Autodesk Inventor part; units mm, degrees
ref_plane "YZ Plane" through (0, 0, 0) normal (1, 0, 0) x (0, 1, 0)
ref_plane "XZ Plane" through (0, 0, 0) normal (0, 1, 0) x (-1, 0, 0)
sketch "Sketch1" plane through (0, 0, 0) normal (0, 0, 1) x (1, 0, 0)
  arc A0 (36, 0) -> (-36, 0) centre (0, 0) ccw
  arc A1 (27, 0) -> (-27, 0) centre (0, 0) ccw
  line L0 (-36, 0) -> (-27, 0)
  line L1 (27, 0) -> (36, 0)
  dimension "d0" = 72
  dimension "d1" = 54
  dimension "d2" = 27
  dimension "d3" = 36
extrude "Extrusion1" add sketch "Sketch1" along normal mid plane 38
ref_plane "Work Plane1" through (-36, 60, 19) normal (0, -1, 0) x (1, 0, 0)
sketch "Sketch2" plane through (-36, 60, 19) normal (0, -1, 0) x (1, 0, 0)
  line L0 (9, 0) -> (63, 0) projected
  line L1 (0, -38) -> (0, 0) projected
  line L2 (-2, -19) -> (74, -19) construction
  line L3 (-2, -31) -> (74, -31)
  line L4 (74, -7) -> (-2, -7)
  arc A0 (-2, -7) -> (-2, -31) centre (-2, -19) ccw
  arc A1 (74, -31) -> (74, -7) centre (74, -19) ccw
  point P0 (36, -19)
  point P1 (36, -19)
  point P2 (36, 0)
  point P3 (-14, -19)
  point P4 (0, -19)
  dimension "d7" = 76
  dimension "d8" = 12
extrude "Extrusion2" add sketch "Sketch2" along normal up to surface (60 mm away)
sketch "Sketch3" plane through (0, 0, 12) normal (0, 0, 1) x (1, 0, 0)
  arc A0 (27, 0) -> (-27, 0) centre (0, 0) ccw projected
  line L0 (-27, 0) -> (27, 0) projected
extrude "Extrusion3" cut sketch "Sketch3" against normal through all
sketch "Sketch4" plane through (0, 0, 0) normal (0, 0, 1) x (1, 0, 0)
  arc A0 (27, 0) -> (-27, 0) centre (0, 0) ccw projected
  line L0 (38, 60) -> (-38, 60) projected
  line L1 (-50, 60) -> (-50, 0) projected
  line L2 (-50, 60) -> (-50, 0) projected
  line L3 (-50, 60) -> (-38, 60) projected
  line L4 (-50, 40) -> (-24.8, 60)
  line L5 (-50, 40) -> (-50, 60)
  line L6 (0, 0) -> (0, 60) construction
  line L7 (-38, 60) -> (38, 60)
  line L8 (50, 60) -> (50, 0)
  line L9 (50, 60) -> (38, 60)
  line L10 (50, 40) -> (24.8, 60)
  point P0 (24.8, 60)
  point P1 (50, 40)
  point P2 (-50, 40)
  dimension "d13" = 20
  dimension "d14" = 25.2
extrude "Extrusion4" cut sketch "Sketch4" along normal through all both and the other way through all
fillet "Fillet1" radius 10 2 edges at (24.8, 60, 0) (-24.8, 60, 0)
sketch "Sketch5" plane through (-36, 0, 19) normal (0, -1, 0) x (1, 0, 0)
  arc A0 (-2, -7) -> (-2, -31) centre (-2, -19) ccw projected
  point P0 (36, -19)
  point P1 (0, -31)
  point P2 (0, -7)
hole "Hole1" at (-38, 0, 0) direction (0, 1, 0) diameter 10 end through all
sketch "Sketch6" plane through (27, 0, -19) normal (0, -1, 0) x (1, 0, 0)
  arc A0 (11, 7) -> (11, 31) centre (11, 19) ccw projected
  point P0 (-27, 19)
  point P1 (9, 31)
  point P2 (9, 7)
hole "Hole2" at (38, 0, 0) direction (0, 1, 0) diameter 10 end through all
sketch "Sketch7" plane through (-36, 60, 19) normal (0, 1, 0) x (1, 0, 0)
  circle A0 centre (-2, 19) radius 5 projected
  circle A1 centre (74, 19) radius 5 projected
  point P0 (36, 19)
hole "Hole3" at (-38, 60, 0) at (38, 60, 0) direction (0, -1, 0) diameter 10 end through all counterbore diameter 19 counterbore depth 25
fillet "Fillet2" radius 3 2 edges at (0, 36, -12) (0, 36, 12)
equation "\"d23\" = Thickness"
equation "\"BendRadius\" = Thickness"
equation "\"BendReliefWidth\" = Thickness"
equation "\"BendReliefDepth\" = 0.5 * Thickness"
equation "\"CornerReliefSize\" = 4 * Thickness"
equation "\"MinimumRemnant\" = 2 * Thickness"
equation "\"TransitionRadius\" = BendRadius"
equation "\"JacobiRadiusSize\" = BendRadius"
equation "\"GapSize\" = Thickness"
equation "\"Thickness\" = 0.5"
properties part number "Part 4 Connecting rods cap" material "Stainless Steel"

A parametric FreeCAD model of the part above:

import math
import FreeCAD as App
import Part
import Sketcher


def edges_at(feature, points):
    """Names of the edges that pass closest to the given points."""
    edges = feature.Shape.Edges
    near = lambda p: min(range(len(edges)), key=lambda i: edges[i].distToShape(Part.Vertex(*p))[0])
    return sorted({f"Edge{near(p) + 1}" for p in points})

doc = App.newDocument("Part")
body = doc.addObject("PartDesign::Body", "Body")

sketch1 = body.newObject("Sketcher::SketchObject", "Sketch")
sketch1.AttachmentSupport = (doc.getObject("XY_Plane"), [""])
sketch1.MapMode = "FlatFace"
sketch1.addGeometry(Part.LineSegment(App.Vector(27, 0, 0), App.Vector(36, 0, 0)), False)
sketch1.addGeometry(Part.ArcOfCircle(Part.Circle(App.Vector(0, 0, 0), App.Vector(0, 0, 1), 36), math.radians(0), math.radians(180)), False)
sketch1.addGeometry(Part.LineSegment(App.Vector(-36, 0, 0), App.Vector(-27, 0, 0)), False)
sketch1.addGeometry(Part.ArcOfCircle(Part.Circle(App.Vector(0, 0, 0), App.Vector(0, 0, 1), 27), math.radians(0), math.radians(180)), False)
sketch1.addConstraint(Sketcher.Constraint("Coincident", 0, 2, 1, 1))
sketch1.addConstraint(Sketcher.Constraint("Coincident", 1, 2, 2, 1))
sketch1.addConstraint(Sketcher.Constraint("Coincident", 2, 2, 3, 2))
sketch1.addConstraint(Sketcher.Constraint("Coincident", 3, 1, 0, 1))
sketch1.addConstraint(Sketcher.Constraint("Horizontal", 0))
sketch1.addConstraint(Sketcher.Constraint("Horizontal", 2))
sketch1.addConstraint(Sketcher.Constraint("Coincident", 1, 3, -1, 1))
sketch1.addConstraint(Sketcher.Constraint("Coincident", 3, 3, -1, 1))
sketch1.addConstraint(Sketcher.Constraint("PointOnObject", 0, 2, -1))
sketch1.addConstraint(Sketcher.Constraint("PointOnObject", 1, 2, -1))
sketch1.addConstraint(Sketcher.Constraint("Radius", 1, 36.0))
sketch1.addConstraint(Sketcher.Constraint("Radius", 3, 27.0))
pad1 = body.newObject("PartDesign::Pad", "Pad")
pad1.Profile = sketch1
pad1.Length = 38
pad1.Midplane = True

sketch2 = body.newObject("Sketcher::SketchObject", "Sketch001")
sketch2.AttachmentSupport = (doc.getObject("XZ_Plane"), [""])
sketch2.MapMode = "FlatFace"
sketch2.AttachmentOffset = App.Placement(App.Vector(0, 0, -60), App.Rotation())
sketch2.addGeometry(Part.LineSegment(App.Vector(-38, -12, 0), App.Vector(38, -12, 0)), False)
sketch2.addGeometry(Part.ArcOfCircle(Part.Circle(App.Vector(38, 0, 0), App.Vector(0, 0, 1), 12), math.radians(-90), math.radians(90)), False)
sketch2.addGeometry(Part.LineSegment(App.Vector(38, 12, 0), App.Vector(-38, 12, 0)), False)
sketch2.addGeometry(Part.ArcOfCircle(Part.Circle(App.Vector(-38, 0, 0), App.Vector(0, 0, 1), 12), math.radians(90), math.radians(270)), False)
sketch2.addConstraint(Sketcher.Constraint("Tangent", 0, 2, 1, 1))
sketch2.addConstraint(Sketcher.Constraint("Tangent", 1, 2, 2, 1))
sketch2.addConstraint(Sketcher.Constraint("Tangent", 2, 2, 3, 1))
sketch2.addConstraint(Sketcher.Constraint("Tangent", 3, 2, 0, 1))
sketch2.addConstraint(Sketcher.Constraint("Horizontal", 0))
sketch2.addConstraint(Sketcher.Constraint("Horizontal", 2))
sketch2.addConstraint(Sketcher.Constraint("Symmetric", 1, 3, 3, 3, -1, 1))
sketch2.addConstraint(Sketcher.Constraint("Radius", 1, 12.0))
sketch2.addConstraint(Sketcher.Constraint("DistanceX", 0, 1, 0, 2, 76.0))
pad2 = body.newObject("PartDesign::Pad", "Pad001")
pad2.Profile = sketch2
pad2.Length = 60

sketch3 = body.newObject("Sketcher::SketchObject", "Sketch002")
sketch3.AttachmentSupport = (doc.getObject("XY_Plane"), [""])
sketch3.MapMode = "FlatFace"
sketch3.AttachmentOffset = App.Placement(App.Vector(0, 0, 12), App.Rotation())
sketch3.addGeometry(Part.LineSegment(App.Vector(-27, 0, 0), App.Vector(27, 0, 0)), False)
sketch3.addGeometry(Part.ArcOfCircle(Part.Circle(App.Vector(0, 0, 0), App.Vector(0, 0, 1), 27), math.radians(0), math.radians(180)), False)
sketch3.addConstraint(Sketcher.Constraint("Coincident", 0, 1, 1, 2))
sketch3.addConstraint(Sketcher.Constraint("Coincident", 1, 1, 0, 2))
sketch3.addConstraint(Sketcher.Constraint("Horizontal", 0))
sketch3.addConstraint(Sketcher.Constraint("Coincident", 1, 3, -1, 1))
sketch3.addConstraint(Sketcher.Constraint("PointOnObject", 0, 1, -1))
sketch3.addConstraint(Sketcher.Constraint("Radius", 1, 27.0))
pocket1 = body.newObject("PartDesign::Pocket", "Pocket")
pocket1.Profile = sketch3
pocket1.Type = "ThroughAll"

sketch4 = body.newObject("Sketcher::SketchObject", "Sketch003")
sketch4.AttachmentSupport = (doc.getObject("XY_Plane"), [""])
sketch4.MapMode = "FlatFace"
sketch4.addGeometry(Part.LineSegment(App.Vector(50, 60, 0), App.Vector(25, 60, 0)), False)
sketch4.addGeometry(Part.LineSegment(App.Vector(25, 60, 0), App.Vector(50, 40, 0)), False)
sketch4.addGeometry(Part.LineSegment(App.Vector(50, 40, 0), App.Vector(50, 60, 0)), False)
sketch4.addGeometry(Part.LineSegment(App.Vector(-50, 40, 0), App.Vector(-25, 60, 0)), False)
sketch4.addGeometry(Part.LineSegment(App.Vector(-25, 60, 0), App.Vector(-50, 60, 0)), False)
sketch4.addGeometry(Part.LineSegment(App.Vector(-50, 60, 0), App.Vector(-50, 40, 0)), False)
sketch4.addConstraint(Sketcher.Constraint("Coincident", 0, 2, 1, 1))
sketch4.addConstraint(Sketcher.Constraint("Coincident", 1, 2, 2, 1))
sketch4.addConstraint(Sketcher.Constraint("Coincident", 2, 2, 0, 1))
sketch4.addConstraint(Sketcher.Constraint("Coincident", 3, 2, 4, 1))
sketch4.addConstraint(Sketcher.Constraint("Coincident", 4, 2, 5, 1))
sketch4.addConstraint(Sketcher.Constraint("Coincident", 5, 2, 3, 1))
sketch4.addConstraint(Sketcher.Constraint("Horizontal", 0))
sketch4.addConstraint(Sketcher.Constraint("Vertical", 2))
sketch4.addConstraint(Sketcher.Constraint("Horizontal", 4))
sketch4.addConstraint(Sketcher.Constraint("Vertical", 5))
sketch4.addConstraint(Sketcher.Constraint("Symmetric", 0, 2, 3, 2, -2))
sketch4.addConstraint(Sketcher.Constraint("Symmetric", 1, 2, 5, 2, -2))
sketch4.addConstraint(Sketcher.Constraint("DistanceY", 2, 1, 2, 2, 20.0))
sketch4.addConstraint(Sketcher.Constraint("DistanceX", 0, 2, 0, 1, 25.2))
sketch4.addConstraint(Sketcher.Constraint("DistanceY", -1, 1, 0, 2, 60.0))
sketch4.addConstraint(Sketcher.Constraint("DistanceX", -1, 1, 1, 2, 50.0))
pocket2 = body.newObject("PartDesign::Pocket", "Pocket001")
pocket2.Profile = sketch4
pocket2.Type = "ThroughAll"
pocket2.Midplane = True
doc.recompute()

fillet = body.newObject("PartDesign::Fillet", "Fillet")
fillet.Base = (pocket2, edges_at(pocket2, [(24.8, 60, 0), (-24.8, 60, 0)]))
fillet.Radius = 10

sketch5 = body.newObject("Sketcher::SketchObject", "Sketch004")
sketch5.AttachmentSupport = (doc.getObject("XZ_Plane"), [""])
sketch5.MapMode = "FlatFace"
sketch5.addGeometry(Part.Circle(App.Vector(-38, 0, 0), App.Vector(0, 0, 1), 5), False)
sketch5.addConstraint(Sketcher.Constraint("PointOnObject", 0, 3, -1))
sketch5.addConstraint(Sketcher.Constraint("Diameter", 0, 10.0))
sketch5.addConstraint(Sketcher.Constraint("DistanceX", 0, 3, -1, 1, 38.0))
doc.recompute()
hole = body.newObject("PartDesign::Hole", "Hole")
hole.Profile = sketch5
hole.ThreadType = "None"
hole.Diameter = 10
hole.DepthType = "ThroughAll"

sketch6 = body.newObject("Sketcher::SketchObject", "Sketch005")
sketch6.AttachmentSupport = (doc.getObject("XZ_Plane"), [""])
sketch6.MapMode = "FlatFace"
sketch6.addGeometry(Part.Circle(App.Vector(38, 0, 0), App.Vector(0, 0, 1), 5), False)
sketch6.addConstraint(Sketcher.Constraint("PointOnObject", 0, 3, -1))
sketch6.addConstraint(Sketcher.Constraint("Diameter", 0, 10.0))
sketch6.addConstraint(Sketcher.Constraint("DistanceX", -1, 1, 0, 3, 38.0))
doc.recompute()
hole2 = body.newObject("PartDesign::Hole", "Hole001")
hole2.Profile = sketch6
hole2.ThreadType = "None"
hole2.Diameter = 10
hole2.DepthType = "ThroughAll"

sketch7 = body.newObject("Sketcher::SketchObject", "Sketch006")
sketch7.AttachmentSupport = (doc.getObject("XZ_Plane"), [""])
sketch7.MapMode = "FlatFace"
sketch7.AttachmentOffset = App.Placement(App.Vector(0, 0, -60), App.Rotation())
sketch7.addGeometry(Part.Circle(App.Vector(-38, 0, 0), App.Vector(0, 0, 1), 5), False)
sketch7.addGeometry(Part.Circle(App.Vector(38, 0, 0), App.Vector(0, 0, 1), 5), False)
sketch7.addConstraint(Sketcher.Constraint("Equal", 0, 1))
sketch7.addConstraint(Sketcher.Constraint("Symmetric", 0, 3, 1, 3, -1, 1))
sketch7.addConstraint(Sketcher.Constraint("PointOnObject", 0, 3, -1))
sketch7.addConstraint(Sketcher.Constraint("Diameter", 0, 10.0))
sketch7.addConstraint(Sketcher.Constraint("DistanceX", 0, 3, -1, 1, 38.0))
doc.recompute()
hole3 = body.newObject("PartDesign::Hole", "Hole002")
hole3.Profile = sketch7
hole3.ThreadType = "None"
hole3.Diameter = 10
hole3.DepthType = "ThroughAll"
hole3.HoleCutType = "Counterbore"
hole3.HoleCutDiameter = 19
hole3.HoleCutDepth = 25
hole3.Reversed = True
doc.recompute()

fillet2 = body.newObject("PartDesign::Fillet", "Fillet001")
fillet2.Base = (hole3, edges_at(hole3, [(0, 36, -12), (0, 36, 12)]))
fillet2.Radius = 3

doc.recompute()
